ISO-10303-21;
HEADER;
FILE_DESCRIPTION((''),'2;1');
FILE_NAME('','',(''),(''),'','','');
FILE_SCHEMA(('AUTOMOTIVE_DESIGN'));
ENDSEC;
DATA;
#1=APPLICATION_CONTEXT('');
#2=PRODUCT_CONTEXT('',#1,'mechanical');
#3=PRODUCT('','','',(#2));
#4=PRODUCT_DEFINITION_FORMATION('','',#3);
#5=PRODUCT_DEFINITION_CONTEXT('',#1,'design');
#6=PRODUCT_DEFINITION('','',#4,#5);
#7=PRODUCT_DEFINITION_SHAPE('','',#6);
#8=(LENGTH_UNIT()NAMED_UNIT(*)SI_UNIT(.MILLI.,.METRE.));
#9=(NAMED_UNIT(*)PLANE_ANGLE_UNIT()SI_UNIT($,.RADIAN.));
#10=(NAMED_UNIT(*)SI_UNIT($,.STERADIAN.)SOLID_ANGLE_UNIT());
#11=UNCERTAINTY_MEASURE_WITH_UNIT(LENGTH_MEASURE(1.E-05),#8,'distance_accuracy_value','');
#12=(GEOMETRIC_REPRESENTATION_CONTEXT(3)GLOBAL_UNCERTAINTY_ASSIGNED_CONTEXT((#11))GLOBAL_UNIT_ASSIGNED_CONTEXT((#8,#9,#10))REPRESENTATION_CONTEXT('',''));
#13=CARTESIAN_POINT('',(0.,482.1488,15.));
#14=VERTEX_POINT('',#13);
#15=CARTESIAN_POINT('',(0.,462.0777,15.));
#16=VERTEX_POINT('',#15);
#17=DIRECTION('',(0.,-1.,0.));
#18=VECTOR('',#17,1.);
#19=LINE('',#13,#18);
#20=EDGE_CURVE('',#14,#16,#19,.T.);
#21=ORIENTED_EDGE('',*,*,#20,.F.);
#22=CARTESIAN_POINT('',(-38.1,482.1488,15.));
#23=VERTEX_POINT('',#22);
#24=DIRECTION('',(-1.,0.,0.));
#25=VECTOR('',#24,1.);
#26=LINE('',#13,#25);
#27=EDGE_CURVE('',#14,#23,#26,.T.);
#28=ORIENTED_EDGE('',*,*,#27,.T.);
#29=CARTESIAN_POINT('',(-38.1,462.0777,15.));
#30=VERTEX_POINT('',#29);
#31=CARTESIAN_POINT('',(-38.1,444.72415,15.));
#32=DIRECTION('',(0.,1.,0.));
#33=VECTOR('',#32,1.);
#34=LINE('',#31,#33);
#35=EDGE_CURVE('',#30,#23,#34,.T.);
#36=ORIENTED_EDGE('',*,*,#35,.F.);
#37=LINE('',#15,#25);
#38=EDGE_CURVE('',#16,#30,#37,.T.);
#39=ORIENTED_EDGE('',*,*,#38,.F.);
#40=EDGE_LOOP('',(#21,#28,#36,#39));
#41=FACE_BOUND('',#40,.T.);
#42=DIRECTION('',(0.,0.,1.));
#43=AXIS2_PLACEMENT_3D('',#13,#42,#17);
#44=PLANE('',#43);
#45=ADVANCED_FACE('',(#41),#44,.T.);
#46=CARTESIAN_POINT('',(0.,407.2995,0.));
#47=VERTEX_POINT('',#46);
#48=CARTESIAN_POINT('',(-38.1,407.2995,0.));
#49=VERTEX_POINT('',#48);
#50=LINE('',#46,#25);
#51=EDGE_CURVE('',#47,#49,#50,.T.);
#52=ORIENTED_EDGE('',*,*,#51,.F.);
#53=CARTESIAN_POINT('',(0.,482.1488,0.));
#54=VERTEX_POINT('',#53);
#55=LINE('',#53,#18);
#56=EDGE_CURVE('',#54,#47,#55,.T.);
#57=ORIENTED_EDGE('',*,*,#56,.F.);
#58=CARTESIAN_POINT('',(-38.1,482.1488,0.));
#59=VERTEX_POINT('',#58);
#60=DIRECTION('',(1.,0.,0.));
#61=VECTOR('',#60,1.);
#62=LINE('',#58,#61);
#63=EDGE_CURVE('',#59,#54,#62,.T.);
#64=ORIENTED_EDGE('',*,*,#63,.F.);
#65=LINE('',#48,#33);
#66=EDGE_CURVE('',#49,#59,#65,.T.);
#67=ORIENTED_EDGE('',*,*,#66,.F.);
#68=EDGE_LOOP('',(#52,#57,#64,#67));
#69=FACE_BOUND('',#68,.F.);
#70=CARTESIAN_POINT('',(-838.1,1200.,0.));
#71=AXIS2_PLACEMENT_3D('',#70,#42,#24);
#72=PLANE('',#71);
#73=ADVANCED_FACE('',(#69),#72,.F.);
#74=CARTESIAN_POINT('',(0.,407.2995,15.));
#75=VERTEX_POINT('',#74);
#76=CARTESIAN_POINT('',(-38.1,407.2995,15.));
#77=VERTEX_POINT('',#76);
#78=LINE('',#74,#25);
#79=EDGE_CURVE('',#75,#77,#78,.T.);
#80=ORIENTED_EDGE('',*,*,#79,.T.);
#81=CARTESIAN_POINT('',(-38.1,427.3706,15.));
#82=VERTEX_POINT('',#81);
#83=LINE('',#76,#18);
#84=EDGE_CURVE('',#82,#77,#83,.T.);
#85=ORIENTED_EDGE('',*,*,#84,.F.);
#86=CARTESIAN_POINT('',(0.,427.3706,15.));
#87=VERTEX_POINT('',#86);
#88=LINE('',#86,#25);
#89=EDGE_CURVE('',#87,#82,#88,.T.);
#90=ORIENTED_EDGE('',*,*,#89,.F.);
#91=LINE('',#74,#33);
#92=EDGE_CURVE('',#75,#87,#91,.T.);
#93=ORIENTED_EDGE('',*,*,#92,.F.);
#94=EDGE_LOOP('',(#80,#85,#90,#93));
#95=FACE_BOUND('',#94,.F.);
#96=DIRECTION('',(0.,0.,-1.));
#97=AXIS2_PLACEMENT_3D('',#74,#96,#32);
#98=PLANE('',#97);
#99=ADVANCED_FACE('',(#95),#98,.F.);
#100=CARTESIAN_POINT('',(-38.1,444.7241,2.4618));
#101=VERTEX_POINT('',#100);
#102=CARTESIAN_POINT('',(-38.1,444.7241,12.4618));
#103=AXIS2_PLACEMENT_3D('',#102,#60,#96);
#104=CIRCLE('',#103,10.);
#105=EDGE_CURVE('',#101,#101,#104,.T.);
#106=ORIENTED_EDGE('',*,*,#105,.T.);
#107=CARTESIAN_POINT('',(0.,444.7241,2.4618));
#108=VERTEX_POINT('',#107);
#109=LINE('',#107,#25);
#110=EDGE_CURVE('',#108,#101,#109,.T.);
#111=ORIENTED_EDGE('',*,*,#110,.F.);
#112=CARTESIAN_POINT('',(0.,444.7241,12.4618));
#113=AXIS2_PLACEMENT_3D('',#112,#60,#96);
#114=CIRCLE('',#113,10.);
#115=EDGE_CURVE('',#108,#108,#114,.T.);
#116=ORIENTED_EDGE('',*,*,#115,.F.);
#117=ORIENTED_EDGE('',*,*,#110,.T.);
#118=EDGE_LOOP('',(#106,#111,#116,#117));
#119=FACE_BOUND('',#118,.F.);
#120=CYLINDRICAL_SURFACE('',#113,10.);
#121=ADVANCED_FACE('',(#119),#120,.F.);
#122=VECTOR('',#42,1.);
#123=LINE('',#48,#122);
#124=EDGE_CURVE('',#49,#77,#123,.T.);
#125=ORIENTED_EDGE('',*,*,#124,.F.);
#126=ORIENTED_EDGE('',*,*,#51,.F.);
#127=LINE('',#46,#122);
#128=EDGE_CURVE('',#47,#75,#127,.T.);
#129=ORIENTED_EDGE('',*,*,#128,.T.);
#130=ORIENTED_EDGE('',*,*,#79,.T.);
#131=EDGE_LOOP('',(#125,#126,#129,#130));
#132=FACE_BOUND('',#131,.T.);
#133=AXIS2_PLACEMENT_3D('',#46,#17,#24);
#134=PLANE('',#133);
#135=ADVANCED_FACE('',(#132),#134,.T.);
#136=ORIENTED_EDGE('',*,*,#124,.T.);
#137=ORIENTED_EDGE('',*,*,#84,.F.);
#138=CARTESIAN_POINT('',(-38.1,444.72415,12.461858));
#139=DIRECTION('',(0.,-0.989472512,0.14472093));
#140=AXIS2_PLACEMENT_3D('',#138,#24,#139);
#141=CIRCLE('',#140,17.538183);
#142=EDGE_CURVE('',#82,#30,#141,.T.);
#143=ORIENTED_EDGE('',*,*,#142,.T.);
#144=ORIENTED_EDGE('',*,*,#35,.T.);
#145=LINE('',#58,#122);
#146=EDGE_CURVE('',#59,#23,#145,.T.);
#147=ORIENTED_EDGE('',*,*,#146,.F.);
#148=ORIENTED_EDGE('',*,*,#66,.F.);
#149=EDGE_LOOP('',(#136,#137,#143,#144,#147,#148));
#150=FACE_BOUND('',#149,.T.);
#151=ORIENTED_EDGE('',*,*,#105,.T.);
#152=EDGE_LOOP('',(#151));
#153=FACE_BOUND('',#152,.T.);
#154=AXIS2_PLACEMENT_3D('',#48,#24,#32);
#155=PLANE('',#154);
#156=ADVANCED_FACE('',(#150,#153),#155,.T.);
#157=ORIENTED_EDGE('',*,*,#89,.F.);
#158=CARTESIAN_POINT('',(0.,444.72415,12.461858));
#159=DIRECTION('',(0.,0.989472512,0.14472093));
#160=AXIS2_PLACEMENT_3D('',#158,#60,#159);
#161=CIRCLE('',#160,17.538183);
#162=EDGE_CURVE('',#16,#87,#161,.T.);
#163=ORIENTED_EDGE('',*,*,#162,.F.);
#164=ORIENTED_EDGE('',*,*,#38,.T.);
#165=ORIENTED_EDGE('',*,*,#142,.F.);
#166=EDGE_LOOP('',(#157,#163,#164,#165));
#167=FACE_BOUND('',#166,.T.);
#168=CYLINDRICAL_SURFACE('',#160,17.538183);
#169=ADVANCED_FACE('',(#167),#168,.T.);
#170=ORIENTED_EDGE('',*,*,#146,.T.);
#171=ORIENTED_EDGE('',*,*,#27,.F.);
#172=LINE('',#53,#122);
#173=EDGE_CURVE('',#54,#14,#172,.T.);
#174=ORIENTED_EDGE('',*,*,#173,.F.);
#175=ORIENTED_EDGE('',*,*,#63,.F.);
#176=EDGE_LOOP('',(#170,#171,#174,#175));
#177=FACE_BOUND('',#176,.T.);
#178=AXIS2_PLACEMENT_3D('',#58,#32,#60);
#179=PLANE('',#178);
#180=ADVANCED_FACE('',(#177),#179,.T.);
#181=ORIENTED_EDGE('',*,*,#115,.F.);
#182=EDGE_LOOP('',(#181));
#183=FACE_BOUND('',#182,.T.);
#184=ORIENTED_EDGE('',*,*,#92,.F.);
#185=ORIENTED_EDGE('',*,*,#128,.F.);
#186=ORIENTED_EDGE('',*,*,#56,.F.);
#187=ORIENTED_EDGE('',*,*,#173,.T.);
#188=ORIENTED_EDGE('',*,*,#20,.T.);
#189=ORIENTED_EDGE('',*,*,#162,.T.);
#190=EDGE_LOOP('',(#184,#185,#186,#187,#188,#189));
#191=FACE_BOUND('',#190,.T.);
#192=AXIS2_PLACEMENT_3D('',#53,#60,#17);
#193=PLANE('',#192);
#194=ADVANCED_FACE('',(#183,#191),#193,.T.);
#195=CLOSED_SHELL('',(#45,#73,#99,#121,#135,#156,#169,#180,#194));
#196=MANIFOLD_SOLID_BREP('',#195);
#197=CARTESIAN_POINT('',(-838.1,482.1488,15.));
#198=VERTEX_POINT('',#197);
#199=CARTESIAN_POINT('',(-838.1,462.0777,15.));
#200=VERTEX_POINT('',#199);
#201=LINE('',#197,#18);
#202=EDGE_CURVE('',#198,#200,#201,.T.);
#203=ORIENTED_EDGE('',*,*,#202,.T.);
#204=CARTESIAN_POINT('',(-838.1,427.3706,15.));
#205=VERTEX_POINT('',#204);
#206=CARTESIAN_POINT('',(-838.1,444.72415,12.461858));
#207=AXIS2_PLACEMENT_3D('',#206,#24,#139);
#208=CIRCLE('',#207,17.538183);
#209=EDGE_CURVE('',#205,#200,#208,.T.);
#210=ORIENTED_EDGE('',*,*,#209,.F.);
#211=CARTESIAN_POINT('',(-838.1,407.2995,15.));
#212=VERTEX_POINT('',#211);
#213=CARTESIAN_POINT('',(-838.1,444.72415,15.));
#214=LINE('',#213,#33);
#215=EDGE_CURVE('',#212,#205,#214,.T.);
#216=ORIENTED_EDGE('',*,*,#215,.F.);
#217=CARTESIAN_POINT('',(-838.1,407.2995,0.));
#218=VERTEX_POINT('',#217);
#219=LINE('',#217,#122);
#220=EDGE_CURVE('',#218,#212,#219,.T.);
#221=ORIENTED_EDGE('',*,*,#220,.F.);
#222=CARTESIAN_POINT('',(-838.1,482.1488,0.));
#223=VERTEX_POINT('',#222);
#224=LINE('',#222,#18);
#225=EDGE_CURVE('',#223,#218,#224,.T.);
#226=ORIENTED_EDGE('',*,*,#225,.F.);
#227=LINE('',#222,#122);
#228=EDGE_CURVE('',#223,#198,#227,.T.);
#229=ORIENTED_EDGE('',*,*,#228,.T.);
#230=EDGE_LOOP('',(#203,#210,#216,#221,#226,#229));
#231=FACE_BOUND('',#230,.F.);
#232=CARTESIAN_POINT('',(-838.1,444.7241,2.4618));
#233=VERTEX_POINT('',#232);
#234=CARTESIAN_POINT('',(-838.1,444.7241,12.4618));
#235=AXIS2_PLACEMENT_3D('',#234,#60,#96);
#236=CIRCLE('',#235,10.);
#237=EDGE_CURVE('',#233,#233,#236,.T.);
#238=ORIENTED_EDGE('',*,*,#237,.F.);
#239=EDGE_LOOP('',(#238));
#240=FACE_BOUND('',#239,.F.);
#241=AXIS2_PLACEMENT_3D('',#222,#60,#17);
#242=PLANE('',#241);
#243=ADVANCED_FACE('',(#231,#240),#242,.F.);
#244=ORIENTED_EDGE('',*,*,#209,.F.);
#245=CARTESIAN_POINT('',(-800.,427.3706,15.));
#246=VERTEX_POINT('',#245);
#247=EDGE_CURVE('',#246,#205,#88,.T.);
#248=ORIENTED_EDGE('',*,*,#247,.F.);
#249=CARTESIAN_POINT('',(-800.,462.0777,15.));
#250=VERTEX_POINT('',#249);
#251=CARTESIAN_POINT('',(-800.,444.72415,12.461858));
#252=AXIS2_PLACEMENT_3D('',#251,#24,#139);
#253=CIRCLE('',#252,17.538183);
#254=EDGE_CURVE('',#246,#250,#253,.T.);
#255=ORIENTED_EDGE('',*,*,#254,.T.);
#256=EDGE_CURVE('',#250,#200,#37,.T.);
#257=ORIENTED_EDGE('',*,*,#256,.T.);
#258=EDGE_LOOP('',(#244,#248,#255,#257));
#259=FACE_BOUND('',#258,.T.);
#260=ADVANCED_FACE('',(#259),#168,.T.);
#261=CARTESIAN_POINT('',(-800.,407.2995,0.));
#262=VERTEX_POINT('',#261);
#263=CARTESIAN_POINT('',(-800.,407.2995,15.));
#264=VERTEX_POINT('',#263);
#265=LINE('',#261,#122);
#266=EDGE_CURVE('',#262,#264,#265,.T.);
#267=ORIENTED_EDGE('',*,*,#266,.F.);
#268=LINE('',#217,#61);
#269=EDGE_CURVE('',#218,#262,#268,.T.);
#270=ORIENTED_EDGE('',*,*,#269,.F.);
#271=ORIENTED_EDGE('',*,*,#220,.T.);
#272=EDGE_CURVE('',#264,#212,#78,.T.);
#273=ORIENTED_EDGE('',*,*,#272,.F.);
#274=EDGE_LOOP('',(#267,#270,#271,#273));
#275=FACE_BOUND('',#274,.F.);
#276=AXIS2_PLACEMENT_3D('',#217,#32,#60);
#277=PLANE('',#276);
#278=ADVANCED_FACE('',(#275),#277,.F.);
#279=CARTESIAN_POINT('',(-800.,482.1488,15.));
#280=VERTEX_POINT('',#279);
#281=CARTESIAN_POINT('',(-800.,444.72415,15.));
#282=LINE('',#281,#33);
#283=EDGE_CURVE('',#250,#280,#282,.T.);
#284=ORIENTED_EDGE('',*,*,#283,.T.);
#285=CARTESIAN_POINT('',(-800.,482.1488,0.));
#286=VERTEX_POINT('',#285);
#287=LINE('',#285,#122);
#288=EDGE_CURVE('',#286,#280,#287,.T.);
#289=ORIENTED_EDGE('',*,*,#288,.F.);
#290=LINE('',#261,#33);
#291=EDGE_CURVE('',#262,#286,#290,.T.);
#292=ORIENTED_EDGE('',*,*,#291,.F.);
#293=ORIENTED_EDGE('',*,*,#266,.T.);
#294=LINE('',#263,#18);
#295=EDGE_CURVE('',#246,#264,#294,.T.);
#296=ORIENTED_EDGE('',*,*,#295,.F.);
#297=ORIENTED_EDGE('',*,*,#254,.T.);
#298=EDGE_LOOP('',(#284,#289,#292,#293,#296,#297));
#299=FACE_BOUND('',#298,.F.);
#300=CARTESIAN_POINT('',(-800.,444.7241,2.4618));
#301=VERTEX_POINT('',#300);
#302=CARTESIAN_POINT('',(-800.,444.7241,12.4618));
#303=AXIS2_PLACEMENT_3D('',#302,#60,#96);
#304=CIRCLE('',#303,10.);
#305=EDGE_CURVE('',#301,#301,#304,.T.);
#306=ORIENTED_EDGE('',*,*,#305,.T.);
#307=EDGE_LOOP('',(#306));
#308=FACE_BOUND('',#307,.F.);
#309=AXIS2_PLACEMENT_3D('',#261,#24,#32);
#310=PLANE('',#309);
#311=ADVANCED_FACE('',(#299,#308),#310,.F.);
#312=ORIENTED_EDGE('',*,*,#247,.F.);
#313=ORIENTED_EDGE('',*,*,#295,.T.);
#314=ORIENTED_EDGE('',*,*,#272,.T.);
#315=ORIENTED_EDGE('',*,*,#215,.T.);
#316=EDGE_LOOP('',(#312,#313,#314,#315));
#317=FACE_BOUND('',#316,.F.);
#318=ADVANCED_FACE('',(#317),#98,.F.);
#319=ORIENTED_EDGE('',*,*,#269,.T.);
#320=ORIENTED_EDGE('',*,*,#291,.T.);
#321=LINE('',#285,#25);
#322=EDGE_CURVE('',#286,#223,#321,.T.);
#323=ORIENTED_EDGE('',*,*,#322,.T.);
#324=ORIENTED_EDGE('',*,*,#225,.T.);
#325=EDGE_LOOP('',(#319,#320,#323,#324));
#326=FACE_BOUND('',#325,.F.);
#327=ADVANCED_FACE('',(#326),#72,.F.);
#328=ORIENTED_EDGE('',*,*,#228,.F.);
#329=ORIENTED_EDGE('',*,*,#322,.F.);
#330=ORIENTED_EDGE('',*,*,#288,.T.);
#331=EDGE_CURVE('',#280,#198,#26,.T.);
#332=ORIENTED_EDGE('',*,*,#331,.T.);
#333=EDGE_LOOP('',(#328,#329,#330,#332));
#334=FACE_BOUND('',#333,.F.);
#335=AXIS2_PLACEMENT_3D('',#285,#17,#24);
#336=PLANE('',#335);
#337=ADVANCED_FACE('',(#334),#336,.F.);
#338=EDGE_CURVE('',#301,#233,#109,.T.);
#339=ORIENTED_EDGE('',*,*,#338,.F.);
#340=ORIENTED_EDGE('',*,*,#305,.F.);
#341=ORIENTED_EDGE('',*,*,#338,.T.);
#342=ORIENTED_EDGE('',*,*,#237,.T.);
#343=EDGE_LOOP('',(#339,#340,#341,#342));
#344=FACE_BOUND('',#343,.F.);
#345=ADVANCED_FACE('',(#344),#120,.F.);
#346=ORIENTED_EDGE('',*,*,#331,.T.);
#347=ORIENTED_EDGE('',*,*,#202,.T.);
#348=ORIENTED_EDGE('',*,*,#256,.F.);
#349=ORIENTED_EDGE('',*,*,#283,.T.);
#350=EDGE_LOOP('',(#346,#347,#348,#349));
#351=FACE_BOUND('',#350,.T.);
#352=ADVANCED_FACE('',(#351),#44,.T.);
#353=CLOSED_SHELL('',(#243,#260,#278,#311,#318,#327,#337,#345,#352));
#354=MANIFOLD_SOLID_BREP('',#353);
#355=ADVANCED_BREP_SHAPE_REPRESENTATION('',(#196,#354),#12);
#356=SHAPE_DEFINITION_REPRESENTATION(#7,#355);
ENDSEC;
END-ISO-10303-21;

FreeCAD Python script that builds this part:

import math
import FreeCAD as App
import Part
import Sketcher


def add_polygon(sketch, points):
    """Adds a closed chain of lines whose ends are joined by coincident constraints."""
    first, n = sketch.GeometryCount, len(points)
    for a, b in zip(points, points[1:] + points[:1]):
        sketch.addGeometry(Part.LineSegment(App.Vector(*a, 0), App.Vector(*b, 0)), False)
    for i in range(n):
        sketch.addConstraint(Sketcher.Constraint("Coincident", first + i, 2, first + (i + 1) % n, 1))

doc = App.newDocument("Part")
body = doc.addObject("PartDesign::Body", "Body")
body.AllowCompound = True

# Sketch on XY plane
sketch1 = body.newObject("Sketcher::SketchObject", "Sketch")
sketch1.AttachmentSupport = (doc.getObject("XY_Plane"), [""])
sketch1.MapMode = "FlatFace"
add_polygon(sketch1, [(-838, 482), (-838, 407), (-800, 407), (-800, 482)])  # lines 0-3
add_polygon(sketch1, [(-38, 407), (0, 407), (0, 482), (-38, 482)])  # lines 4-7
sketch1.addConstraint(Sketcher.Constraint("Vertical", 0))
sketch1.addConstraint(Sketcher.Constraint("Horizontal", 1))
sketch1.addConstraint(Sketcher.Constraint("Vertical", 2))
sketch1.addConstraint(Sketcher.Constraint("Horizontal", 3))
sketch1.addConstraint(Sketcher.Constraint("Horizontal", 4))
sketch1.addConstraint(Sketcher.Constraint("Vertical", 5))
sketch1.addConstraint(Sketcher.Constraint("Horizontal", 6))
sketch1.addConstraint(Sketcher.Constraint("Vertical", 7))
sketch1.addConstraint(Sketcher.Constraint("PointOnObject", 4, 2, -2))
sketch1.addConstraint(Sketcher.Constraint("Horizontal", 1, 2, 4, 2))
sketch1.addConstraint(Sketcher.Constraint("Horizontal", 3, 2, 5, 2))
sketch1.addConstraint(Sketcher.Constraint("Equal", 3, 4))
sketch1.addConstraint(Sketcher.Constraint("DistanceX", 1, 1, 1, 2, 38.1))
sketch1.addConstraint(Sketcher.Constraint("DistanceX", 1, 2, -1, 1, 800.0))
sketch1.addConstraint(Sketcher.Constraint("DistanceY", 0, 2, 0, 1, 74.8493))
sketch1.addConstraint(Sketcher.Constraint("DistanceY", -1, 1, 0, 2, 407.2995))
pad1 = body.newObject("PartDesign::Pad", "Pad")
pad1.Profile = sketch1
pad1.Length = 30

# Sketch on YZ plane
sketch2 = body.newObject("Sketcher::SketchObject", "Sketch001")
sketch2.AttachmentSupport = (doc.getObject("YZ_Plane"), [""])
sketch2.MapMode = "FlatFace"
sketch2.addGeometry(Part.LineSegment(App.Vector(407, 30, 0), App.Vector(407, 15, 0)), False)
sketch2.addGeometry(Part.LineSegment(App.Vector(407, 15, 0), App.Vector(427, 15, 0)), False)
sketch2.addGeometry(Part.ArcOfCircle(Part.Circle(App.Vector(445, 12, 0), App.Vector(0, 0, 1), 18), math.radians(90), math.radians(172)), False)
sketch2.addGeometry(Part.LineSegment(App.Vector(445, 30, 0), App.Vector(407, 30, 0)), False)
sketch2.addGeometry(Part.LineSegment(App.Vector(462, 15, 0), App.Vector(482, 15, 0)), False)
sketch2.addGeometry(Part.LineSegment(App.Vector(482, 15, 0), App.Vector(482, 30, 0)), False)
sketch2.addGeometry(Part.LineSegment(App.Vector(482, 30, 0), App.Vector(445, 30, 0)), False)
sketch2.addGeometry(Part.ArcOfCircle(Part.Circle(App.Vector(445, 12, 0), App.Vector(0, 0, 1), 18), math.radians(8), math.radians(90)), False)
sketch2.addGeometry(Part.Circle(App.Vector(445, 12, 0), App.Vector(0, 0, 1), 10), False)
sketch2.addConstraint(Sketcher.Constraint("Coincident", 0, 2, 1, 1))
sketch2.addConstraint(Sketcher.Constraint("Coincident", 1, 2, 2, 2))
sketch2.addConstraint(Sketcher.Constraint("Tangent", 2, 1, 3, 1))
sketch2.addConstraint(Sketcher.Constraint("Coincident", 3, 2, 0, 1))
sketch2.addConstraint(Sketcher.Constraint("Coincident", 4, 2, 5, 1))
sketch2.addConstraint(Sketcher.Constraint("Coincident", 5, 2, 6, 1))
sketch2.addConstraint(Sketcher.Constraint("Tangent", 6, 2, 7, 2))
sketch2.addConstraint(Sketcher.Constraint("Coincident", 7, 1, 4, 1))
sketch2.addConstraint(Sketcher.Constraint("Vertical", 0))
sketch2.addConstraint(Sketcher.Constraint("Horizontal", 1))
sketch2.addConstraint(Sketcher.Constraint("Horizontal", 3))
sketch2.addConstraint(Sketcher.Constraint("Horizontal", 4))
sketch2.addConstraint(Sketcher.Constraint("Vertical", 5))
sketch2.addConstraint(Sketcher.Constraint("Horizontal", 6))
sketch2.addConstraint(Sketcher.Constraint("Coincident", 7, 3, 2, 3))
sketch2.addConstraint(Sketcher.Constraint("Coincident", 8, 3, 2, 3))
sketch2.addConstraint(Sketcher.Constraint("Equal", 2, 7))
sketch2.addConstraint(Sketcher.Constraint("Horizontal", 1, 2, 4, 2))
sketch2.addConstraint(Sketcher.Constraint("Equal", 1, 4))
sketch2.addConstraint(Sketcher.Constraint("Diameter", 8, 20.0))
sketch2.addConstraint(Sketcher.Constraint("DistanceY", 0, 2, 0, 1, 15.0))
sketch2.addConstraint(Sketcher.Constraint("DistanceY", -1, 1, 0, 2, 15.0))
sketch2.addConstraint(Sketcher.Constraint("Radius", 2, 17.5382))
sketch2.addConstraint(Sketcher.Constraint("DistanceX", 1, 1, 1, 2, 20.071))
sketch2.addConstraint(Sketcher.Constraint("DistanceX", -1, 1, 2, 3, 444.724))
pocket1 = body.newObject("PartDesign::Pocket", "Pocket")
pocket1.Profile = sketch2
pocket1.Type = "ThroughAll"

doc.recompute()
